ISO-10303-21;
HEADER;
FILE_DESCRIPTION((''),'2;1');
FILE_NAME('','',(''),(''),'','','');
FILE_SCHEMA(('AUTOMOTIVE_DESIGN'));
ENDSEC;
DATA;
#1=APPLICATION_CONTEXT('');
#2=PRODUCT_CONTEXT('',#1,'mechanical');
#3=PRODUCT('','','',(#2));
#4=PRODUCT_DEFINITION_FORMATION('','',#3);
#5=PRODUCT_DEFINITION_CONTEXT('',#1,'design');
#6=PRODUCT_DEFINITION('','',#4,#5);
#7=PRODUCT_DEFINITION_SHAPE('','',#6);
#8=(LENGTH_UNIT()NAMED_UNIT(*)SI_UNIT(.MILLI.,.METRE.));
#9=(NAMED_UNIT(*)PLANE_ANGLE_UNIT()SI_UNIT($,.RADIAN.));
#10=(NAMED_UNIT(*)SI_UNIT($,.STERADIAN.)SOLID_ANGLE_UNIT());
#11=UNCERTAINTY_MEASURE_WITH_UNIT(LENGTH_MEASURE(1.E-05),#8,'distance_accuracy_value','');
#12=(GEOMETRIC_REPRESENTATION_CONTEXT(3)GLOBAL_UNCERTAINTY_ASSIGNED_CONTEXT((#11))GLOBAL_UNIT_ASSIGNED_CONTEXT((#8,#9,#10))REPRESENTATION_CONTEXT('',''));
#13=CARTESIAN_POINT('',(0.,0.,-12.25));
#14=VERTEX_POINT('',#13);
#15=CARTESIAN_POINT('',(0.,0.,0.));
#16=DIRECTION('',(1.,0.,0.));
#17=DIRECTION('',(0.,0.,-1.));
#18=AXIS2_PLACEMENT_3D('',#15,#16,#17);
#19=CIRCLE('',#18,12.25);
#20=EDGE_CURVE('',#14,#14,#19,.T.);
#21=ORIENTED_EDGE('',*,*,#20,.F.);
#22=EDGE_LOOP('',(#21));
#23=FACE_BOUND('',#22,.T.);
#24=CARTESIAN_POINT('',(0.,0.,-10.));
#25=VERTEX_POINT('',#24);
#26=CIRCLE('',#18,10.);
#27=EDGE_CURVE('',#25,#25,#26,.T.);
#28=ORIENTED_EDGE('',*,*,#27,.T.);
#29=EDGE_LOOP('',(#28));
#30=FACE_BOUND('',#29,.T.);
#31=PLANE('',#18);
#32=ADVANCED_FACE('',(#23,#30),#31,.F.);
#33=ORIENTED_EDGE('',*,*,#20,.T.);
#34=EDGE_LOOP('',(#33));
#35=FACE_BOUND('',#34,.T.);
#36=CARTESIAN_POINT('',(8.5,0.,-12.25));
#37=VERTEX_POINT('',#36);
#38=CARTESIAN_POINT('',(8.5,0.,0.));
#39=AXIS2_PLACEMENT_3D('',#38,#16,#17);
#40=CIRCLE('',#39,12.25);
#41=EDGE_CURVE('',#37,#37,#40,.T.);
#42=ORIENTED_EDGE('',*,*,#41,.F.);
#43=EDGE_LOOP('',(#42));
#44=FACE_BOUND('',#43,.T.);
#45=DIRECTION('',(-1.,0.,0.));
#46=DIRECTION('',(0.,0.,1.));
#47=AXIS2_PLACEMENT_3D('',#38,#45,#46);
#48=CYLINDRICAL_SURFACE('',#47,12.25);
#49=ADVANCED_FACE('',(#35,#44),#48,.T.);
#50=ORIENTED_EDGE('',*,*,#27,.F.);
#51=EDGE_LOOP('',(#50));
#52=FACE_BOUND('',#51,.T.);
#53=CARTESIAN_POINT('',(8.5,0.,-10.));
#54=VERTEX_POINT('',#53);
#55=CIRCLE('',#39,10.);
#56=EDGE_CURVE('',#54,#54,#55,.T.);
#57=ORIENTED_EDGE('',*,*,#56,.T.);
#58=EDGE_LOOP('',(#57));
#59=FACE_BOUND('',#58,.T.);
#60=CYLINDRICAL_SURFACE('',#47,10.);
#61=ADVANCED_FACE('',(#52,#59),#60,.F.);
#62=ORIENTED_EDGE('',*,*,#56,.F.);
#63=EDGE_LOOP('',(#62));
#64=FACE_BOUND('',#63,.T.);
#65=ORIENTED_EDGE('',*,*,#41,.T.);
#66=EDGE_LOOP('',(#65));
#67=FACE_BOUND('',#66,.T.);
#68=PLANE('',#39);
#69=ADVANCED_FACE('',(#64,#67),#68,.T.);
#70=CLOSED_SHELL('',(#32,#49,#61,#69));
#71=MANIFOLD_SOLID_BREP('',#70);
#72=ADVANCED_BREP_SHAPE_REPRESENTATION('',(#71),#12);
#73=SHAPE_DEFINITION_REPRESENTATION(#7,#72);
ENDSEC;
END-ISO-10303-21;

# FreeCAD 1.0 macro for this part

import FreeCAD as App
import Part
import Sketcher

V = App.Vector

doc = App.newDocument("Part")
body = doc.addObject("PartDesign::Body", "Body")

# Sketch on YZ plane
sketch1 = body.newObject("Sketcher::SketchObject", "Sketch")
sketch1.AttachmentSupport = (doc.getObject("YZ_Plane"), [""])
sketch1.MapMode = "FlatFace"
sketch1.addGeometry([
    Part.Circle(V(0, 0, 0), V(0, 0, 1), 12),
    Part.Circle(V(0, 0, 0), V(0, 0, 1), 10),
], False)
sketch1.addConstraint([
    Sketcher.Constraint("Coincident", 0, 3, -1, 1),
    Sketcher.Constraint("Coincident", 1, 3, -1, 1),
    Sketcher.Constraint("Diameter", 1, 20.0),
    Sketcher.Constraint("Diameter", 0, 24.5),
])
pad1 = body.newObject("PartDesign::Pad", "Pad")
pad1.Profile = sketch1
pad1.Length = 8.5

doc.recompute()
